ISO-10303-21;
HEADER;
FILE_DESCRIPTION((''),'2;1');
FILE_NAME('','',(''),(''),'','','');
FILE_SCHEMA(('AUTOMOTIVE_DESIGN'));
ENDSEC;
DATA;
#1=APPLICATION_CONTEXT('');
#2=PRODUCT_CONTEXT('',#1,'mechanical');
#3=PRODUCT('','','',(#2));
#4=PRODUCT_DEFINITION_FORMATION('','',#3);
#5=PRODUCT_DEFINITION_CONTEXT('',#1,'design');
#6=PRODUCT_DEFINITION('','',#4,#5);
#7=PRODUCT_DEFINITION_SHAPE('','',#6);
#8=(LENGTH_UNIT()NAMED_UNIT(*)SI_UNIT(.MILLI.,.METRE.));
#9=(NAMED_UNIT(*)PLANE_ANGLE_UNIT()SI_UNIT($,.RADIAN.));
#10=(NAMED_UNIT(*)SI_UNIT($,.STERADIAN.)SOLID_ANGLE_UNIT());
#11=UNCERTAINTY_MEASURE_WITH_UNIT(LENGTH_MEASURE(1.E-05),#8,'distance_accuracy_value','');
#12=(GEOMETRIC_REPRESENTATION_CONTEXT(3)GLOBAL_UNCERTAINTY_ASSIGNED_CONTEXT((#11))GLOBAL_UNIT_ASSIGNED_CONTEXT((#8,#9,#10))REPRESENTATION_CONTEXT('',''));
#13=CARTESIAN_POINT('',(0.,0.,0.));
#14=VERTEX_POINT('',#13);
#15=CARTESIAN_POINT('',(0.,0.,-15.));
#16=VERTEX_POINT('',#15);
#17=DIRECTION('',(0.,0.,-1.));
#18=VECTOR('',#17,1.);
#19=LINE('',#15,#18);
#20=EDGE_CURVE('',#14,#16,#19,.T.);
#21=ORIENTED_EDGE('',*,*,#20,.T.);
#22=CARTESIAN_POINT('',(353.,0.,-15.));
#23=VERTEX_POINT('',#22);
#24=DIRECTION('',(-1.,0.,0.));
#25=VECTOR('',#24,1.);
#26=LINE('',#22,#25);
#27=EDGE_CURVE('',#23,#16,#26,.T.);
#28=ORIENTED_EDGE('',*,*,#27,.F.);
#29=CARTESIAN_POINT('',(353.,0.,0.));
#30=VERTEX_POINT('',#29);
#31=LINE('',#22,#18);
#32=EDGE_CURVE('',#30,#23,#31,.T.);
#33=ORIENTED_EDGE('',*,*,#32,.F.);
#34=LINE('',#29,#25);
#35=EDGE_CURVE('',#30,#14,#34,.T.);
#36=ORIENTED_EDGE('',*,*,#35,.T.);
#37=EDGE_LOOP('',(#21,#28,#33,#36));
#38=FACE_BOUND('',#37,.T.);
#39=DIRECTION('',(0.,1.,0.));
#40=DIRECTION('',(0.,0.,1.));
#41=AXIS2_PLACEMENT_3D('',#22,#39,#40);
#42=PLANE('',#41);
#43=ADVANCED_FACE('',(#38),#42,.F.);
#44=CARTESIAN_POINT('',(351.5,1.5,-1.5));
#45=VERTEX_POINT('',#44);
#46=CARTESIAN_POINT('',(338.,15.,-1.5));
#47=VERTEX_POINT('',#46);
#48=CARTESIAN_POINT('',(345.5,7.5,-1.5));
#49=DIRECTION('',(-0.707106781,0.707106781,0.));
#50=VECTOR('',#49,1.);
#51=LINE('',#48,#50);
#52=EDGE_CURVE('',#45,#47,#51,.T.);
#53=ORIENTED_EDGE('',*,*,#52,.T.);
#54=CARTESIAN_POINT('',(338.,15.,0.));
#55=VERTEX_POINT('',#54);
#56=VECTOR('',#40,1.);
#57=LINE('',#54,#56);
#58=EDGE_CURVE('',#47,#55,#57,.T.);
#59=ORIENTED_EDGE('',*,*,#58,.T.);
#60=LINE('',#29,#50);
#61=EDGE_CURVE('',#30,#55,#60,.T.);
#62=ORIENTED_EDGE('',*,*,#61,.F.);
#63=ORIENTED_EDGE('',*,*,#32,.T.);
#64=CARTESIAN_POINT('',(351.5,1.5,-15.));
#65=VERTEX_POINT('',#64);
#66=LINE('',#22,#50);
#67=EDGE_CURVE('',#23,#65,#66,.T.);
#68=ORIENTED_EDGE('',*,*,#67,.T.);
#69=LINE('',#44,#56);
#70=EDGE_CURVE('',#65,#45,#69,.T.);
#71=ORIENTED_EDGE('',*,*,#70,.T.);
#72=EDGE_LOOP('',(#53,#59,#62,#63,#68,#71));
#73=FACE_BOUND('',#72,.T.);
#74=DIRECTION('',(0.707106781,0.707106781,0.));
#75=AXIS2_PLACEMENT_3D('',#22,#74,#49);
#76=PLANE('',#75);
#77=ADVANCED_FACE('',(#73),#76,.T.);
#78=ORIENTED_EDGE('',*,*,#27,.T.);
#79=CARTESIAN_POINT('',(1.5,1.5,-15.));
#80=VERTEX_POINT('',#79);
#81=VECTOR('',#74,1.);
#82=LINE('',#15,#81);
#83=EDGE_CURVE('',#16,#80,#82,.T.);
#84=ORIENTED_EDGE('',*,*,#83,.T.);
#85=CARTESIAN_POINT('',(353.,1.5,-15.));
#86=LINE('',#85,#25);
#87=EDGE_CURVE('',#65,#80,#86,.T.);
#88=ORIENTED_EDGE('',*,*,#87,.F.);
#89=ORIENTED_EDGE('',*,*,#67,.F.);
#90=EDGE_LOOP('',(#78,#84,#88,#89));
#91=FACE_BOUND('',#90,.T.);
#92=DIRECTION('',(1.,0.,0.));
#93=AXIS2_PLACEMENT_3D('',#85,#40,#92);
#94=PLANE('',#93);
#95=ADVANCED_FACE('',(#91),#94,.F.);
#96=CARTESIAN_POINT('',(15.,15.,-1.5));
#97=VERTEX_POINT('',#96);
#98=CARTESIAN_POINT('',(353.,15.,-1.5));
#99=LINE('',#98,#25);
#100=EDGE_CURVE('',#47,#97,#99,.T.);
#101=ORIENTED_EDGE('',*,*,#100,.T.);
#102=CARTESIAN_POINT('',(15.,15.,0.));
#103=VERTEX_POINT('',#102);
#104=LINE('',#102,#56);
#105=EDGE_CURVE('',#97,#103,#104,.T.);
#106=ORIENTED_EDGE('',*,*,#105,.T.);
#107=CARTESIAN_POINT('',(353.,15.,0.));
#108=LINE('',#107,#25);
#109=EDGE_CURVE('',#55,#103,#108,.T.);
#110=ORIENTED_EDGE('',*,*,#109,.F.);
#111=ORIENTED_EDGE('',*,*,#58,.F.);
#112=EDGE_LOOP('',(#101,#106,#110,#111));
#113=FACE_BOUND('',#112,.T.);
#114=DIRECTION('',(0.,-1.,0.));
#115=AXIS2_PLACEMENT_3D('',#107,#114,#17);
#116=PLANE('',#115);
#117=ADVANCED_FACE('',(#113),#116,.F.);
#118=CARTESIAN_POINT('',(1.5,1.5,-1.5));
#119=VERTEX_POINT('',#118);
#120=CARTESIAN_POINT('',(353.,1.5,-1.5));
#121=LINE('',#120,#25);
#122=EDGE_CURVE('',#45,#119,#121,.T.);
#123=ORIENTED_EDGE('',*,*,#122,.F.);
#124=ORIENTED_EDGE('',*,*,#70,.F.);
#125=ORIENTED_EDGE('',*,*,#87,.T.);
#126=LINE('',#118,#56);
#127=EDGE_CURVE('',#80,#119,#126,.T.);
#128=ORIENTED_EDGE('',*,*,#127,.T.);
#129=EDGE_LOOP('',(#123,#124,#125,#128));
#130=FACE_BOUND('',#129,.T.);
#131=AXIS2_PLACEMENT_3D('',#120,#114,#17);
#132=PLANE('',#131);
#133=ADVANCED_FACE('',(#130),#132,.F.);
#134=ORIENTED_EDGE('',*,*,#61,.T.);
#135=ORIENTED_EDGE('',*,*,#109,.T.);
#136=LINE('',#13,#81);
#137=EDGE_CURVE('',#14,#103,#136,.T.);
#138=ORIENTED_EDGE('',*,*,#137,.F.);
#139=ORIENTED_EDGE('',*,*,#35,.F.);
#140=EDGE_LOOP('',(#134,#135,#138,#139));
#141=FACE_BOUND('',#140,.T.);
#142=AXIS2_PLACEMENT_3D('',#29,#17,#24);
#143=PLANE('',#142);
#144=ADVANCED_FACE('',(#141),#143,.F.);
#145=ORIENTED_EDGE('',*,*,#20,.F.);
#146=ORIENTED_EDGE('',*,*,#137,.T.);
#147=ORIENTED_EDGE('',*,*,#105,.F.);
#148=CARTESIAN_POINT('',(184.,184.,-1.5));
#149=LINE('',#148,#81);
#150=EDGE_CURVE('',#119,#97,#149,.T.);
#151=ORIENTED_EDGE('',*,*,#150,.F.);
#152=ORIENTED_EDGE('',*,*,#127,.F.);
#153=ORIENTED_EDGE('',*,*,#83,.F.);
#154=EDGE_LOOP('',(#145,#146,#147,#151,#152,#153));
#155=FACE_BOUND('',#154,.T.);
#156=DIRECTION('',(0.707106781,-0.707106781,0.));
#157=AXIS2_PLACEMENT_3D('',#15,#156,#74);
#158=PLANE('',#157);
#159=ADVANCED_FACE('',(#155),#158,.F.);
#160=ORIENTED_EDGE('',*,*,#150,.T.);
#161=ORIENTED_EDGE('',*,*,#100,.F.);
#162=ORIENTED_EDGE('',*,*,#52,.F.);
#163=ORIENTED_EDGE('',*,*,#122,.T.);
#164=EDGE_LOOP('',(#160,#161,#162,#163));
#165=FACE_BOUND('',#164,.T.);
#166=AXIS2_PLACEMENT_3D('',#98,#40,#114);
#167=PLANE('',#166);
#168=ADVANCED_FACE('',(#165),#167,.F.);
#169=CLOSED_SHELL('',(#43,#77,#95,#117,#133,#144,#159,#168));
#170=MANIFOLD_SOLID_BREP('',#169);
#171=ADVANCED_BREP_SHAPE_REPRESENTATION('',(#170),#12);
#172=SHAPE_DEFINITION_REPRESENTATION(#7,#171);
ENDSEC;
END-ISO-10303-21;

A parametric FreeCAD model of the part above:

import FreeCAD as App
import Part
import Sketcher


def add_polygon(sketch, points):
    """Adds a closed chain of lines whose ends are joined by coincident constraints."""
    first, n = sketch.GeometryCount, len(points)
    for a, b in zip(points, points[1:] + points[:1]):
        sketch.addGeometry(Part.LineSegment(App.Vector(*a, 0), App.Vector(*b, 0)), False)
    for i in range(n):
        sketch.addConstraint(Sketcher.Constraint("Coincident", first + i, 2, first + (i + 1) % n, 1))

doc = App.newDocument("Part")
body = doc.addObject("PartDesign::Body", "Body")

# Sketch on YZ plane
sketch1 = doc.addObject("Sketcher::SketchObject", "Sketch")
body.addObject(sketch1)
sketch1.AttachmentSupport = (doc.YZ_Plane, [""])
sketch1.MapMode = "FlatFace"
add_polygon(sketch1, [(15, 0), (0, 0), (0, -15), (1.5, -15), (1.5, -1.5), (15, -1.5)])  # lines 0-5
sketch1.addConstraint([
    Sketcher.Constraint("Horizontal", 0),
    Sketcher.Constraint("Vertical", 1),
    Sketcher.Constraint("Horizontal", 2),
    Sketcher.Constraint("Vertical", 3),
    Sketcher.Constraint("Horizontal", 4),
    Sketcher.Constraint("Vertical", 5),
    Sketcher.Constraint("Coincident", 0, 2, -1, 1),
    Sketcher.Constraint("Equal", 0, 1),
    Sketcher.Constraint("Equal", 4, 3),
    Sketcher.Constraint("DistanceX", 0, 2, 0, 1, 15.0),
    Sketcher.Constraint("DistanceX", 2, 1, 2, 2, 1.5),
])
pad1 = doc.addObject("PartDesign::Pad", "Pad")
body.addObject(pad1)
pad1.Profile = sketch1
pad1.Length = 353

# Sketch on XY plane
sketch2 = doc.addObject("Sketcher::SketchObject", "Sketch001")
body.addObject(sketch2)
sketch2.AttachmentSupport = (doc.XY_Plane, [""])
sketch2.MapMode = "FlatFace"
add_polygon(sketch2, [(0, 0), (21.729874, 21.729874), (0, 21.729874)])  # lines 0-2
sketch2.addConstraint([
    Sketcher.Constraint("Horizontal", 1),
    Sketcher.Constraint("Vertical", 2),
    Sketcher.Constraint("Coincident", 2, 2, -1, 1),
    Sketcher.Constraint("Equal", 1, 2),
    Sketcher.Constraint("DistanceX", 1, 2, 1, 1, 21.729874),
])
pocket1 = doc.addObject("PartDesign::Pocket", "Pocket")
body.addObject(pocket1)
pocket1.Profile = sketch2
pocket1.Type = "ThroughAll"
doc.recompute()

datumplane = doc.addObject("PartDesign::Plane", "DatumPlane")
body.addObject(datumplane)
datumplane.AttachmentSupport = (doc.YZ_Plane, [""])
datumplane.MapMode = "FlatFace"
datumplane.AttachmentOffset = App.Placement(App.Vector(0, 0, 176.5), App.Rotation())
mirrored = doc.addObject("PartDesign::Mirrored", "Mirrored")
body.addObject(mirrored)
mirrored.Originals = [pocket1]
mirrored.MirrorPlane = (datumplane, [""])
body.Tip = mirrored

doc.recompute()
